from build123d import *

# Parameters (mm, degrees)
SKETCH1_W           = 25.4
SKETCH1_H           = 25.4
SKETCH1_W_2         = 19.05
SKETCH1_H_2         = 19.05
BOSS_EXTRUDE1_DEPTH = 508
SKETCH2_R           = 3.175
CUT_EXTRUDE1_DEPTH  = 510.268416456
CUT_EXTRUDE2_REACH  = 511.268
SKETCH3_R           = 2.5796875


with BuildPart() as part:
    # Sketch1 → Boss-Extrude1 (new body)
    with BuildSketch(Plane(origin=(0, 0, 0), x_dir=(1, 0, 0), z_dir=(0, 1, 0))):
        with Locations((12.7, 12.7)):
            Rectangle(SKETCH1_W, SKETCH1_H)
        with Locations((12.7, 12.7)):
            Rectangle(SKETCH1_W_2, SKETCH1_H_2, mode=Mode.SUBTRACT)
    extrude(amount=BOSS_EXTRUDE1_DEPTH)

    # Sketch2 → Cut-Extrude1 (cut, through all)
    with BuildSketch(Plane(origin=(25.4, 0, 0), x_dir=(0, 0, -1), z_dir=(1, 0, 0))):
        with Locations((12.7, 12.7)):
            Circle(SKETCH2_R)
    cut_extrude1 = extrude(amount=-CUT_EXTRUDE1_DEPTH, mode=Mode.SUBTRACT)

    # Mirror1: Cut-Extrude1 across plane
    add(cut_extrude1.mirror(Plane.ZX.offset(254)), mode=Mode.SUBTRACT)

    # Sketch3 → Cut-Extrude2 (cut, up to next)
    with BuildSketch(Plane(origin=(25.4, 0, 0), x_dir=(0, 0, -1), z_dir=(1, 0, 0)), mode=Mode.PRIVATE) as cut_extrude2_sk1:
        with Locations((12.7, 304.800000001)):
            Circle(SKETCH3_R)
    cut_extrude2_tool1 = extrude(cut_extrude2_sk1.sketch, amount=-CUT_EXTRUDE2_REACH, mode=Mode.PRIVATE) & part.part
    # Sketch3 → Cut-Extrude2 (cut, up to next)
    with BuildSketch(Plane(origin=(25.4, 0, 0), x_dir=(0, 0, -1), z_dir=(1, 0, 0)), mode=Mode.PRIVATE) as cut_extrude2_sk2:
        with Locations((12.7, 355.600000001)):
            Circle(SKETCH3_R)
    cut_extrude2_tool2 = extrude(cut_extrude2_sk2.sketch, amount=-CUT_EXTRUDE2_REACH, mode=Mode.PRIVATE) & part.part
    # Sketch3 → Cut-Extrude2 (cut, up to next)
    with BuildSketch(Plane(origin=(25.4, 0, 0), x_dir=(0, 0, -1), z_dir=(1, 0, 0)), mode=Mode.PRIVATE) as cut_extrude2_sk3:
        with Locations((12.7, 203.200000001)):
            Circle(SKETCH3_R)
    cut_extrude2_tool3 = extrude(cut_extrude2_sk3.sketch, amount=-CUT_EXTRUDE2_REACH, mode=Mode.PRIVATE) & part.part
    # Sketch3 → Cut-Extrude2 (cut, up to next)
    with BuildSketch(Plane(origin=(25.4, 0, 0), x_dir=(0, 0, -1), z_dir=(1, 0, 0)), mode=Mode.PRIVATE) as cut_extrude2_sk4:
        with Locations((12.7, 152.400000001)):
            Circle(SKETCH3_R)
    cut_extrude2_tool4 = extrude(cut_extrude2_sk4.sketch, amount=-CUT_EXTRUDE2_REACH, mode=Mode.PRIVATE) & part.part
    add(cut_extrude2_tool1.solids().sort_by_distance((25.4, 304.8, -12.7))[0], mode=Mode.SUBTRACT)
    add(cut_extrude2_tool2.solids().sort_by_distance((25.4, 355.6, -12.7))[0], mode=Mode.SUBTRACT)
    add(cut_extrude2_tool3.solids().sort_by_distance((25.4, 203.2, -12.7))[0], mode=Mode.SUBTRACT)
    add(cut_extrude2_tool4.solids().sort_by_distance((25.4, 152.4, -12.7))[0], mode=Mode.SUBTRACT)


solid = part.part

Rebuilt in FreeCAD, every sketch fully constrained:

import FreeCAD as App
import Part
import Sketcher
Q = App.Units.Quantity

doc = App.newDocument("Part")
body = doc.addObject("PartDesign::Body", "Body")

sketch1 = body.newObject("Sketcher::SketchObject", "Sketch")
sketch1.AttachmentSupport = (doc.getObject("XZ_Plane"), [""])
sketch1.MapMode = "FlatFace"
sketch1.addGeometry([
    Part.LineSegment(App.Vector(0, -25, 0), App.Vector(0, 0, 0)),
    Part.LineSegment(App.Vector(0, 0, 0), App.Vector(25, 0, 0)),
    Part.LineSegment(App.Vector(25, 0, 0), App.Vector(25, -25, 0)),
    Part.LineSegment(App.Vector(25, -25, 0), App.Vector(0, -25, 0)),
    Part.LineSegment(App.Vector(22, -3, 0), App.Vector(3, -3, 0)),
    Part.LineSegment(App.Vector(3, -3, 0), App.Vector(3, -22, 0)),
    Part.LineSegment(App.Vector(3, -22, 0), App.Vector(22, -22, 0)),
    Part.LineSegment(App.Vector(22, -22, 0), App.Vector(22, -3, 0)),
], False)
sketch1.addConstraint([
    Sketcher.Constraint("Coincident", 0, 2, 1, 1),
    Sketcher.Constraint("Coincident", 1, 2, 2, 1),
    Sketcher.Constraint("Coincident", 2, 2, 3, 1),
    Sketcher.Constraint("Coincident", 3, 2, 0, 1),
    Sketcher.Constraint("Coincident", 4, 2, 5, 1),
    Sketcher.Constraint("Coincident", 5, 2, 6, 1),
    Sketcher.Constraint("Coincident", 6, 2, 7, 1),
    Sketcher.Constraint("Coincident", 7, 2, 4, 1),
    Sketcher.Constraint("Vertical", 0),
    Sketcher.Constraint("Horizontal", 1),
    Sketcher.Constraint("Vertical", 2),
    Sketcher.Constraint("Horizontal", 3),
    Sketcher.Constraint("Horizontal", 4),
    Sketcher.Constraint("Vertical", 5),
    Sketcher.Constraint("Horizontal", 6),
    Sketcher.Constraint("Vertical", 7),
    Sketcher.Constraint("Coincident", 0, 2, -1, 1),
    Sketcher.Constraint("Equal", 3, 0),
    Sketcher.Constraint("Equal", 6, 5),
    Sketcher.Constraint("DistanceX", 1, 1, 1, 2, Q("1 in")),
    Sketcher.Constraint("DistanceX", 4, 2, 4, 1, Q("0.75 in")),
    Sketcher.Constraint("DistanceX", -1, 1, 4, 2, Q("0.125 in")),
    Sketcher.Constraint("DistanceY", 4, 2, -1, 1, Q("0.125 in")),
])
pad1 = body.newObject("PartDesign::Pad", "Pad")
pad1.Profile = sketch1
pad1.Length = Q("20 in")
pad1.Reversed = True

sketch2 = body.newObject("Sketcher::SketchObject", "Sketch001")
sketch2.AttachmentSupport = (doc.getObject("YZ_Plane"), [""])
sketch2.MapMode = "FlatFace"
sketch2.AttachmentOffset = App.Placement(App.Vector(0, 0, 1 * 25.4), App.Rotation())
sketch2.addGeometry(Part.Circle(App.Vector(12.7, -12.7, 0), App.Vector(0, 0, 1), 3.2), False)
sketch2.addConstraint([
    Sketcher.Constraint("Diameter", 0, Q("0.25 in")),
    Sketcher.Constraint("DistanceX", -1, 1, 0, 3, Q("0.5 in")),
    Sketcher.Constraint("DistanceY", 0, 3, -1, 1, Q("0.5 in")),
])
pocket1 = body.newObject("PartDesign::Pocket", "Pocket")
pocket1.Profile = sketch2
pocket1.Type = "ThroughAll"
doc.recompute()

datumplane = body.newObject("PartDesign::Plane", "DatumPlane")
datumplane.AttachmentSupport = (doc.getObject("XZ_Plane"), [""])
datumplane.MapMode = "FlatFace"
datumplane.AttachmentOffset = App.Placement(App.Vector(0, 0, -10 * 25.4), App.Rotation())
mirrored = body.newObject("PartDesign::Mirrored", "Mirrored")
mirrored.Originals = [pocket1]
mirrored.MirrorPlane = (datumplane, [""])
body.Tip = mirrored

sketch3 = body.newObject("Sketcher::SketchObject", "Sketch002")
sketch3.AttachmentSupport = (doc.getObject("YZ_Plane"), [""])
sketch3.MapMode = "FlatFace"
sketch3.AttachmentOffset = App.Placement(App.Vector(0, 0, 1 * 25.4), App.Rotation())
sketch3.addGeometry(Part.Circle(App.Vector(304.8, -12.7, 0), App.Vector(0, 0, 1), 2.6), False)
sketch3.addConstraint([
    Sketcher.Constraint("Diameter", 0, Q("0.203125 in")),
    Sketcher.Constraint("DistanceX", -1, 1, 0, 3, Q("12 in")),
    Sketcher.Constraint("DistanceY", 0, 3, -1, 1, Q("0.5 in")),
])
pocket2 = body.newObject("PartDesign::Pocket", "Pocket001")
pocket2.Profile = sketch3
pocket2.Type = "UpToFirst"

sketch4 = body.newObject("Sketcher::SketchObject", "Sketch003")
sketch4.AttachmentSupport = (doc.getObject("YZ_Plane"), [""])
sketch4.MapMode = "FlatFace"
sketch4.AttachmentOffset = App.Placement(App.Vector(0, 0, 1 * 25.4), App.Rotation())
sketch4.addGeometry(Part.Circle(App.Vector(355.6, -12.7, 0), App.Vector(0, 0, 1), 2.6), False)
sketch4.addConstraint([
    Sketcher.Constraint("Diameter", 0, Q("0.203125 in")),
    Sketcher.Constraint("DistanceX", -1, 1, 0, 3, Q("14 in")),
    Sketcher.Constraint("DistanceY", 0, 3, -1, 1, Q("0.5 in")),
])
pocket3 = body.newObject("PartDesign::Pocket", "Pocket002")
pocket3.Profile = sketch4
pocket3.Type = "UpToFirst"

sketch5 = body.newObject("Sketcher::SketchObject", "Sketch004")
sketch5.AttachmentSupport = (doc.getObject("YZ_Plane"), [""])
sketch5.MapMode = "FlatFace"
sketch5.AttachmentOffset = App.Placement(App.Vector(0, 0, 1 * 25.4), App.Rotation())
sketch5.addGeometry(Part.Circle(App.Vector(203.2, -12.7, 0), App.Vector(0, 0, 1), 2.6), False)
sketch5.addConstraint([
    Sketcher.Constraint("Diameter", 0, Q("0.203125 in")),
    Sketcher.Constraint("DistanceX", -1, 1, 0, 3, Q("8 in")),
    Sketcher.Constraint("DistanceY", 0, 3, -1, 1, Q("0.5 in")),
])
pocket4 = body.newObject("PartDesign::Pocket", "Pocket003")
pocket4.Profile = sketch5
pocket4.Type = "UpToFirst"

sketch6 = body.newObject("Sketcher::SketchObject", "Sketch005")
sketch6.AttachmentSupport = (doc.getObject("YZ_Plane"), [""])
sketch6.MapMode = "FlatFace"
sketch6.AttachmentOffset = App.Placement(App.Vector(0, 0, 1 * 25.4), App.Rotation())
sketch6.addGeometry(Part.Circle(App.Vector(152.4, -12.7, 0), App.Vector(0, 0, 1), 2.6), False)
sketch6.addConstraint([
    Sketcher.Constraint("Diameter", 0, Q("0.203125 in")),
    Sketcher.Constraint("DistanceX", -1, 1, 0, 3, Q("6 in")),
    Sketcher.Constraint("DistanceY", 0, 3, -1, 1, Q("0.5 in")),
])
pocket5 = body.newObject("PartDesign::Pocket", "Pocket004")
pocket5.Profile = sketch6
pocket5.Type = "UpToFirst"

doc.recompute()
